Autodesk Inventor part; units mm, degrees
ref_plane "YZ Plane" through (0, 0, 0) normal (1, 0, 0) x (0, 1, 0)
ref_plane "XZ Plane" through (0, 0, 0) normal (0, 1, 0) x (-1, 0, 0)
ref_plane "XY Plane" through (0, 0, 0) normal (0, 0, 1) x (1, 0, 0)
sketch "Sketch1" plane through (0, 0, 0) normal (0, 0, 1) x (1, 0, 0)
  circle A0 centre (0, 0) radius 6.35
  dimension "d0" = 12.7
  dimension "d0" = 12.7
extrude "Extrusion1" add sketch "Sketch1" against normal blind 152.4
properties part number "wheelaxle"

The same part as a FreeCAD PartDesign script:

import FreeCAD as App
import Part
import Sketcher
from FreeCAD import Vector
Q = App.Units.Quantity

doc = App.newDocument("Part")
params = doc.addObject("Spreadsheet::Sheet", "Params")
for row, (alias, value) in enumerate([
    ("sketch1_diameter", "0.5 in"),
    ("pad1_length", "6 in"),
], start=1):
    params.set(f"A{row}", alias)
    params.set(f"B{row}", "=" + value)
    params.setAlias(f"B{row}", alias)

body = doc.addObject("PartDesign::Body", "Body")

sketch1 = doc.addObject("Sketcher::SketchObject", "Sketch")
body.addObject(sketch1)
sketch1.AttachmentSupport = (doc.XY_Plane, [""])
sketch1.MapMode = "FlatFace"
sketch1.addGeometry(Part.Circle(Vector(0, 0, 0), Vector(0, 0, 1), 6), False)
sketch1.addConstraint(Sketcher.Constraint("Coincident", 0, 3, -1, 1))
sketch1.addConstraint(Sketcher.Constraint("Diameter", 0, Q("0.5 in")))
sketch1.setExpression("Constraints[1]", "Params.sketch1_diameter")
pad1 = doc.addObject("PartDesign::Pad", "Pad")
body.addObject(pad1)
pad1.Profile = sketch1
pad1.setExpression("Length", "Params.pad1_length")
pad1.Reversed = True

doc.recompute()
